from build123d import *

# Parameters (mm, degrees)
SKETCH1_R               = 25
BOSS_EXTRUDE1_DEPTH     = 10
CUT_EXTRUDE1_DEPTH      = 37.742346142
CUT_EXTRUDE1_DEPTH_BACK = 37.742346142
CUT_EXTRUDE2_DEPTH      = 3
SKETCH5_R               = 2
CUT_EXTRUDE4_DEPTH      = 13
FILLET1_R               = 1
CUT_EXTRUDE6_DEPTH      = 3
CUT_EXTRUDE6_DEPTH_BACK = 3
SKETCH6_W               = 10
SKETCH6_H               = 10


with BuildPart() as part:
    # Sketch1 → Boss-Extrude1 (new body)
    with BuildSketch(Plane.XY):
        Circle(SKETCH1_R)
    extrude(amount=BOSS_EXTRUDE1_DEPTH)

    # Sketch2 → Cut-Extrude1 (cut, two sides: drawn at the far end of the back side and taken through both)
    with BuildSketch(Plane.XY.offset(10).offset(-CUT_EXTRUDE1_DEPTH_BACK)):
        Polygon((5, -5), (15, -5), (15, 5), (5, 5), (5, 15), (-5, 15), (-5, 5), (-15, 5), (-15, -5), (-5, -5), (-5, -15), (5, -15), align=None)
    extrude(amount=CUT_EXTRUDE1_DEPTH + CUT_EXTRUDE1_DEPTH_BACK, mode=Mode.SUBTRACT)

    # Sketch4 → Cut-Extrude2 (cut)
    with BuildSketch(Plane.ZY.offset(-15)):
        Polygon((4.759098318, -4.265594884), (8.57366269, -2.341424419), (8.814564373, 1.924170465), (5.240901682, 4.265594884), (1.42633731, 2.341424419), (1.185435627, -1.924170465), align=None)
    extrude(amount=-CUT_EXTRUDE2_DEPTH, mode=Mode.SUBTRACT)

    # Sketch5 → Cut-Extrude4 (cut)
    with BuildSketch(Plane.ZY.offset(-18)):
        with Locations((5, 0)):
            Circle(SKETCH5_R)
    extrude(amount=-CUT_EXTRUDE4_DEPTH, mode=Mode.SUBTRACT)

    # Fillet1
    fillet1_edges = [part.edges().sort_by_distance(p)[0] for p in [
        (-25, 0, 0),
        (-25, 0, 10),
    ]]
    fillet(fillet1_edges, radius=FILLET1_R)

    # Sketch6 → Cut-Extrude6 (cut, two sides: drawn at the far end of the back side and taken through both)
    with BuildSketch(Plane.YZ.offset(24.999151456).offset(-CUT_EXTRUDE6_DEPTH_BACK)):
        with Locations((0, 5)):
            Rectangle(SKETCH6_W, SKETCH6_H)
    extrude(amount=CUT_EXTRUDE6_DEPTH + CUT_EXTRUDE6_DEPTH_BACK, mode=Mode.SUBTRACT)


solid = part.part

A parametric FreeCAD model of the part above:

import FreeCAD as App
import Part
import Sketcher


def edges_at(feature, points):
    """Names of the edges that pass closest to the given points."""
    edges = feature.Shape.Edges
    near = lambda p: min(range(len(edges)), key=lambda i: edges[i].distToShape(Part.Vertex(*p))[0])
    return sorted({f"Edge{near(p) + 1}" for p in points})

doc = App.newDocument("Part")
body = doc.addObject("PartDesign::Body", "Body")

# Sketch on XY plane
sketch1 = body.newObject("Sketcher::SketchObject", "Sketch")
sketch1.AttachmentSupport = (doc.getObject("XY_Plane"), [""])
sketch1.MapMode = "FlatFace"
sketch1.addGeometry(Part.Circle(App.Vector(0, 0, 0), App.Vector(0, 0, 1), 25), False)
sketch1.addConstraint([
    Sketcher.Constraint("Coincident", 0, 3, -1, 1),
    Sketcher.Constraint("Diameter", 0, 50.0),
])
pad1 = body.newObject("PartDesign::Pad", "Pad")
pad1.Profile = sketch1
pad1.Length = 10

# Sketch on XY plane
sketch2 = body.newObject("Sketcher::SketchObject", "Sketch001")
sketch2.AttachmentSupport = (doc.getObject("XY_Plane"), [""])
sketch2.MapMode = "FlatFace"
sketch2.AttachmentOffset = App.Placement(App.Vector(0, 0, 10), App.Rotation())
sketch2.addGeometry([
    Part.LineSegment(App.Vector(5, -5, 0), App.Vector(15, -5, 0)),  # 0
    Part.LineSegment(App.Vector(15, -5, 0), App.Vector(15, 5, 0)),  # 1
    Part.LineSegment(App.Vector(15, 5, 0), App.Vector(5, 5, 0)),  # 2
    Part.LineSegment(App.Vector(5, 5, 0), App.Vector(5, 15, 0)),  # 3
    Part.LineSegment(App.Vector(5, 15, 0), App.Vector(-5, 15, 0)),  # 4
    Part.LineSegment(App.Vector(-5, 15, 0), App.Vector(-5, 5, 0)),  # 5
    Part.LineSegment(App.Vector(-5, 5, 0), App.Vector(-15, 5, 0)),  # 6
    Part.LineSegment(App.Vector(-15, 5, 0), App.Vector(-15, -5, 0)),  # 7
    Part.LineSegment(App.Vector(-15, -5, 0), App.Vector(-5, -5, 0)),  # 8
    Part.LineSegment(App.Vector(-5, -5, 0), App.Vector(-5, -15, 0)),  # 9
    Part.LineSegment(App.Vector(-5, -15, 0), App.Vector(5, -15, 0)),  # 10
    Part.LineSegment(App.Vector(5, -15, 0), App.Vector(5, -5, 0)),  # 11
], False)
sketch2.addConstraint([
    Sketcher.Constraint("Coincident", 0, 2, 1, 1),
    Sketcher.Constraint("Coincident", 1, 2, 2, 1),
    Sketcher.Constraint("Coincident", 2, 2, 3, 1),
    Sketcher.Constraint("Coincident", 3, 2, 4, 1),
    Sketcher.Constraint("Coincident", 4, 2, 5, 1),
    Sketcher.Constraint("Coincident", 5, 2, 6, 1),
    Sketcher.Constraint("Coincident", 6, 2, 7, 1),
    Sketcher.Constraint("Coincident", 7, 2, 8, 1),
    Sketcher.Constraint("Coincident", 8, 2, 9, 1),
    Sketcher.Constraint("Coincident", 9, 2, 10, 1),
    Sketcher.Constraint("Coincident", 10, 2, 11, 1),
    Sketcher.Constraint("Coincident", 11, 2, 0, 1),
    Sketcher.Constraint("Horizontal", 0),
    Sketcher.Constraint("Vertical", 1),
    Sketcher.Constraint("Horizontal", 2),
    Sketcher.Constraint("Vertical", 3),
    Sketcher.Constraint("Horizontal", 4),
    Sketcher.Constraint("Vertical", 5),
    Sketcher.Constraint("Horizontal", 6),
    Sketcher.Constraint("Vertical", 7),
    Sketcher.Constraint("Horizontal", 8),
    Sketcher.Constraint("Vertical", 9),
    Sketcher.Constraint("Horizontal", 10),
    Sketcher.Constraint("Vertical", 11),
    Sketcher.Constraint("Symmetric", 0, 2, 6, 2, -1, 1),
    Sketcher.Constraint("Symmetric", 2, 2, 8, 2, -1, 1),
    Sketcher.Constraint("Symmetric", 4, 2, 10, 2, -1, 1),
    Sketcher.Constraint("Symmetric", 2, 2, 5, 2, -2),
    Sketcher.Constraint("Equal", 2, 4),
    Sketcher.Constraint("Equal", 10, 1),
    Sketcher.Constraint("Equal", 1, 3),
    Sketcher.Constraint("DistanceX", 0, 1, 0, 2, 10.0),
])
pocket1 = body.newObject("PartDesign::Pocket", "Pocket")
pocket1.Profile = sketch2
pocket1.Type = "ThroughAll"
pocket1.Midplane = True

# Sketch on YZ plane
sketch3 = body.newObject("Sketcher::SketchObject", "Sketch002")
sketch3.AttachmentSupport = (doc.getObject("YZ_Plane"), [""])
sketch3.MapMode = "FlatFace"
sketch3.AttachmentOffset = App.Placement(App.Vector(0, 0, 15), App.Rotation())
sketch3.addGeometry([
    Part.LineSegment(App.Vector(-4.265595, 4.759098, 0), App.Vector(-2.341424, 8.573663, 0)),  # 0
    Part.LineSegment(App.Vector(-2.341424, 8.573663, 0), App.Vector(1.92417, 8.814564, 0)),  # 1
    Part.LineSegment(App.Vector(1.92417, 8.814564, 0), App.Vector(4.265595, 5.240902, 0)),  # 2
    Part.LineSegment(App.Vector(4.265595, 5.240902, 0), App.Vector(2.341424, 1.426337, 0)),  # 3
    Part.LineSegment(App.Vector(2.341424, 1.426337, 0), App.Vector(-1.92417, 1.185436, 0)),  # 4
    Part.LineSegment(App.Vector(-1.92417, 1.185436, 0), App.Vector(-4.265595, 4.759098, 0)),  # 5
], False)
sketch3.addConstraint([
    Sketcher.Constraint("Coincident", 0, 2, 1, 1),
    Sketcher.Constraint("Coincident", 1, 2, 2, 1),
    Sketcher.Constraint("Coincident", 2, 2, 3, 1),
    Sketcher.Constraint("Coincident", 3, 2, 4, 1),
    Sketcher.Constraint("Coincident", 4, 2, 5, 1),
    Sketcher.Constraint("Coincident", 5, 2, 0, 1),
    Sketcher.Constraint("Parallel", 0, 3),
    Sketcher.Constraint("Parallel", 1, 4),
    Sketcher.Constraint("Parallel", 2, 5),
    Sketcher.Constraint("Equal", 0, 1),
    Sketcher.Constraint("Equal", 1, 2),
    Sketcher.Constraint("Equal", 2, 3),
    Sketcher.Constraint("DistanceY", -1, 1, 2, 2, 5.240902),
    Sketcher.Constraint("DistanceY", -1, 1, 5, 2, 4.759098),
    Sketcher.Constraint("DistanceY", 0, 2, 1, 2, 0.240902),
    Sketcher.Constraint("Distance", 0, 4.272392),
    Sketcher.Constraint("DistanceX", -1, 1, 1, 2, 1.92417),
    Sketcher.Constraint("DistanceX", 4, 2, -1, 1, 1.92417),
])
pocket2 = body.newObject("PartDesign::Pocket", "Pocket001")
pocket2.Profile = sketch3
pocket2.Length = 3
pocket2.Reversed = True

# Sketch on YZ plane
sketch4 = body.newObject("Sketcher::SketchObject", "Sketch003")
sketch4.AttachmentSupport = (doc.getObject("YZ_Plane"), [""])
sketch4.MapMode = "FlatFace"
sketch4.AttachmentOffset = App.Placement(App.Vector(0, 0, 18), App.Rotation())
sketch4.addGeometry(Part.Circle(App.Vector(0, 5, 0), App.Vector(0, 0, 1), 2), False)
sketch4.addConstraint([
    Sketcher.Constraint("PointOnObject", 0, 3, -2),
    Sketcher.Constraint("Diameter", 0, 4.0),
    Sketcher.Constraint("DistanceY", -1, 1, 0, 3, 5.0),
])
pocket3 = body.newObject("PartDesign::Pocket", "Pocket002")
pocket3.Profile = sketch4
pocket3.Length = 13
pocket3.Reversed = True
doc.recompute()

fillet = body.newObject("PartDesign::Fillet", "Fillet")
fillet.Base = (pocket3, edges_at(pocket3, [(-25, 0, 0), (-25, 0, 10)]))
fillet.Radius = 1

# Sketch on YZ plane
sketch5 = body.newObject("Sketcher::SketchObject", "Sketch004")
sketch5.AttachmentSupport = (doc.getObject("YZ_Plane"), [""])
sketch5.MapMode = "FlatFace"
sketch5.AttachmentOffset = App.Placement(App.Vector(0, 0, 24.999151), App.Rotation())
sketch5.addGeometry([
    Part.LineSegment(App.Vector(-5, 10, 0), App.Vector(-5, 0, 0)),
    Part.LineSegment(App.Vector(-5, 0, 0), App.Vector(5, 0, 0)),
    Part.LineSegment(App.Vector(5, 0, 0), App.Vector(5, 10, 0)),
    Part.LineSegment(App.Vector(5, 10, 0), App.Vector(-5, 10, 0)),
], False)
sketch5.addConstraint([
    Sketcher.Constraint("Coincident", 0, 2, 1, 1),
    Sketcher.Constraint("Coincident", 1, 2, 2, 1),
    Sketcher.Constraint("Coincident", 2, 2, 3, 1),
    Sketcher.Constraint("Coincident", 3, 2, 0, 1),
    Sketcher.Constraint("Vertical", 0),
    Sketcher.Constraint("Horizontal", 1),
    Sketcher.Constraint("Vertical", 2),
    Sketcher.Constraint("Horizontal", 3),
    Sketcher.Constraint("Symmetric", 0, 2, 1, 2, -1, 1),
    Sketcher.Constraint("Equal", 3, 0),
    Sketcher.Constraint("DistanceX", 1, 1, 1, 2, 10.0),
])
pocket4 = body.newObject("PartDesign::Pocket", "Pocket003")
pocket4.Profile = sketch5
pocket4.Type = "TwoLengths"
pocket4.Length = 3
pocket4.Length2 = 3
pocket4.Reversed = True

doc.recompute()
